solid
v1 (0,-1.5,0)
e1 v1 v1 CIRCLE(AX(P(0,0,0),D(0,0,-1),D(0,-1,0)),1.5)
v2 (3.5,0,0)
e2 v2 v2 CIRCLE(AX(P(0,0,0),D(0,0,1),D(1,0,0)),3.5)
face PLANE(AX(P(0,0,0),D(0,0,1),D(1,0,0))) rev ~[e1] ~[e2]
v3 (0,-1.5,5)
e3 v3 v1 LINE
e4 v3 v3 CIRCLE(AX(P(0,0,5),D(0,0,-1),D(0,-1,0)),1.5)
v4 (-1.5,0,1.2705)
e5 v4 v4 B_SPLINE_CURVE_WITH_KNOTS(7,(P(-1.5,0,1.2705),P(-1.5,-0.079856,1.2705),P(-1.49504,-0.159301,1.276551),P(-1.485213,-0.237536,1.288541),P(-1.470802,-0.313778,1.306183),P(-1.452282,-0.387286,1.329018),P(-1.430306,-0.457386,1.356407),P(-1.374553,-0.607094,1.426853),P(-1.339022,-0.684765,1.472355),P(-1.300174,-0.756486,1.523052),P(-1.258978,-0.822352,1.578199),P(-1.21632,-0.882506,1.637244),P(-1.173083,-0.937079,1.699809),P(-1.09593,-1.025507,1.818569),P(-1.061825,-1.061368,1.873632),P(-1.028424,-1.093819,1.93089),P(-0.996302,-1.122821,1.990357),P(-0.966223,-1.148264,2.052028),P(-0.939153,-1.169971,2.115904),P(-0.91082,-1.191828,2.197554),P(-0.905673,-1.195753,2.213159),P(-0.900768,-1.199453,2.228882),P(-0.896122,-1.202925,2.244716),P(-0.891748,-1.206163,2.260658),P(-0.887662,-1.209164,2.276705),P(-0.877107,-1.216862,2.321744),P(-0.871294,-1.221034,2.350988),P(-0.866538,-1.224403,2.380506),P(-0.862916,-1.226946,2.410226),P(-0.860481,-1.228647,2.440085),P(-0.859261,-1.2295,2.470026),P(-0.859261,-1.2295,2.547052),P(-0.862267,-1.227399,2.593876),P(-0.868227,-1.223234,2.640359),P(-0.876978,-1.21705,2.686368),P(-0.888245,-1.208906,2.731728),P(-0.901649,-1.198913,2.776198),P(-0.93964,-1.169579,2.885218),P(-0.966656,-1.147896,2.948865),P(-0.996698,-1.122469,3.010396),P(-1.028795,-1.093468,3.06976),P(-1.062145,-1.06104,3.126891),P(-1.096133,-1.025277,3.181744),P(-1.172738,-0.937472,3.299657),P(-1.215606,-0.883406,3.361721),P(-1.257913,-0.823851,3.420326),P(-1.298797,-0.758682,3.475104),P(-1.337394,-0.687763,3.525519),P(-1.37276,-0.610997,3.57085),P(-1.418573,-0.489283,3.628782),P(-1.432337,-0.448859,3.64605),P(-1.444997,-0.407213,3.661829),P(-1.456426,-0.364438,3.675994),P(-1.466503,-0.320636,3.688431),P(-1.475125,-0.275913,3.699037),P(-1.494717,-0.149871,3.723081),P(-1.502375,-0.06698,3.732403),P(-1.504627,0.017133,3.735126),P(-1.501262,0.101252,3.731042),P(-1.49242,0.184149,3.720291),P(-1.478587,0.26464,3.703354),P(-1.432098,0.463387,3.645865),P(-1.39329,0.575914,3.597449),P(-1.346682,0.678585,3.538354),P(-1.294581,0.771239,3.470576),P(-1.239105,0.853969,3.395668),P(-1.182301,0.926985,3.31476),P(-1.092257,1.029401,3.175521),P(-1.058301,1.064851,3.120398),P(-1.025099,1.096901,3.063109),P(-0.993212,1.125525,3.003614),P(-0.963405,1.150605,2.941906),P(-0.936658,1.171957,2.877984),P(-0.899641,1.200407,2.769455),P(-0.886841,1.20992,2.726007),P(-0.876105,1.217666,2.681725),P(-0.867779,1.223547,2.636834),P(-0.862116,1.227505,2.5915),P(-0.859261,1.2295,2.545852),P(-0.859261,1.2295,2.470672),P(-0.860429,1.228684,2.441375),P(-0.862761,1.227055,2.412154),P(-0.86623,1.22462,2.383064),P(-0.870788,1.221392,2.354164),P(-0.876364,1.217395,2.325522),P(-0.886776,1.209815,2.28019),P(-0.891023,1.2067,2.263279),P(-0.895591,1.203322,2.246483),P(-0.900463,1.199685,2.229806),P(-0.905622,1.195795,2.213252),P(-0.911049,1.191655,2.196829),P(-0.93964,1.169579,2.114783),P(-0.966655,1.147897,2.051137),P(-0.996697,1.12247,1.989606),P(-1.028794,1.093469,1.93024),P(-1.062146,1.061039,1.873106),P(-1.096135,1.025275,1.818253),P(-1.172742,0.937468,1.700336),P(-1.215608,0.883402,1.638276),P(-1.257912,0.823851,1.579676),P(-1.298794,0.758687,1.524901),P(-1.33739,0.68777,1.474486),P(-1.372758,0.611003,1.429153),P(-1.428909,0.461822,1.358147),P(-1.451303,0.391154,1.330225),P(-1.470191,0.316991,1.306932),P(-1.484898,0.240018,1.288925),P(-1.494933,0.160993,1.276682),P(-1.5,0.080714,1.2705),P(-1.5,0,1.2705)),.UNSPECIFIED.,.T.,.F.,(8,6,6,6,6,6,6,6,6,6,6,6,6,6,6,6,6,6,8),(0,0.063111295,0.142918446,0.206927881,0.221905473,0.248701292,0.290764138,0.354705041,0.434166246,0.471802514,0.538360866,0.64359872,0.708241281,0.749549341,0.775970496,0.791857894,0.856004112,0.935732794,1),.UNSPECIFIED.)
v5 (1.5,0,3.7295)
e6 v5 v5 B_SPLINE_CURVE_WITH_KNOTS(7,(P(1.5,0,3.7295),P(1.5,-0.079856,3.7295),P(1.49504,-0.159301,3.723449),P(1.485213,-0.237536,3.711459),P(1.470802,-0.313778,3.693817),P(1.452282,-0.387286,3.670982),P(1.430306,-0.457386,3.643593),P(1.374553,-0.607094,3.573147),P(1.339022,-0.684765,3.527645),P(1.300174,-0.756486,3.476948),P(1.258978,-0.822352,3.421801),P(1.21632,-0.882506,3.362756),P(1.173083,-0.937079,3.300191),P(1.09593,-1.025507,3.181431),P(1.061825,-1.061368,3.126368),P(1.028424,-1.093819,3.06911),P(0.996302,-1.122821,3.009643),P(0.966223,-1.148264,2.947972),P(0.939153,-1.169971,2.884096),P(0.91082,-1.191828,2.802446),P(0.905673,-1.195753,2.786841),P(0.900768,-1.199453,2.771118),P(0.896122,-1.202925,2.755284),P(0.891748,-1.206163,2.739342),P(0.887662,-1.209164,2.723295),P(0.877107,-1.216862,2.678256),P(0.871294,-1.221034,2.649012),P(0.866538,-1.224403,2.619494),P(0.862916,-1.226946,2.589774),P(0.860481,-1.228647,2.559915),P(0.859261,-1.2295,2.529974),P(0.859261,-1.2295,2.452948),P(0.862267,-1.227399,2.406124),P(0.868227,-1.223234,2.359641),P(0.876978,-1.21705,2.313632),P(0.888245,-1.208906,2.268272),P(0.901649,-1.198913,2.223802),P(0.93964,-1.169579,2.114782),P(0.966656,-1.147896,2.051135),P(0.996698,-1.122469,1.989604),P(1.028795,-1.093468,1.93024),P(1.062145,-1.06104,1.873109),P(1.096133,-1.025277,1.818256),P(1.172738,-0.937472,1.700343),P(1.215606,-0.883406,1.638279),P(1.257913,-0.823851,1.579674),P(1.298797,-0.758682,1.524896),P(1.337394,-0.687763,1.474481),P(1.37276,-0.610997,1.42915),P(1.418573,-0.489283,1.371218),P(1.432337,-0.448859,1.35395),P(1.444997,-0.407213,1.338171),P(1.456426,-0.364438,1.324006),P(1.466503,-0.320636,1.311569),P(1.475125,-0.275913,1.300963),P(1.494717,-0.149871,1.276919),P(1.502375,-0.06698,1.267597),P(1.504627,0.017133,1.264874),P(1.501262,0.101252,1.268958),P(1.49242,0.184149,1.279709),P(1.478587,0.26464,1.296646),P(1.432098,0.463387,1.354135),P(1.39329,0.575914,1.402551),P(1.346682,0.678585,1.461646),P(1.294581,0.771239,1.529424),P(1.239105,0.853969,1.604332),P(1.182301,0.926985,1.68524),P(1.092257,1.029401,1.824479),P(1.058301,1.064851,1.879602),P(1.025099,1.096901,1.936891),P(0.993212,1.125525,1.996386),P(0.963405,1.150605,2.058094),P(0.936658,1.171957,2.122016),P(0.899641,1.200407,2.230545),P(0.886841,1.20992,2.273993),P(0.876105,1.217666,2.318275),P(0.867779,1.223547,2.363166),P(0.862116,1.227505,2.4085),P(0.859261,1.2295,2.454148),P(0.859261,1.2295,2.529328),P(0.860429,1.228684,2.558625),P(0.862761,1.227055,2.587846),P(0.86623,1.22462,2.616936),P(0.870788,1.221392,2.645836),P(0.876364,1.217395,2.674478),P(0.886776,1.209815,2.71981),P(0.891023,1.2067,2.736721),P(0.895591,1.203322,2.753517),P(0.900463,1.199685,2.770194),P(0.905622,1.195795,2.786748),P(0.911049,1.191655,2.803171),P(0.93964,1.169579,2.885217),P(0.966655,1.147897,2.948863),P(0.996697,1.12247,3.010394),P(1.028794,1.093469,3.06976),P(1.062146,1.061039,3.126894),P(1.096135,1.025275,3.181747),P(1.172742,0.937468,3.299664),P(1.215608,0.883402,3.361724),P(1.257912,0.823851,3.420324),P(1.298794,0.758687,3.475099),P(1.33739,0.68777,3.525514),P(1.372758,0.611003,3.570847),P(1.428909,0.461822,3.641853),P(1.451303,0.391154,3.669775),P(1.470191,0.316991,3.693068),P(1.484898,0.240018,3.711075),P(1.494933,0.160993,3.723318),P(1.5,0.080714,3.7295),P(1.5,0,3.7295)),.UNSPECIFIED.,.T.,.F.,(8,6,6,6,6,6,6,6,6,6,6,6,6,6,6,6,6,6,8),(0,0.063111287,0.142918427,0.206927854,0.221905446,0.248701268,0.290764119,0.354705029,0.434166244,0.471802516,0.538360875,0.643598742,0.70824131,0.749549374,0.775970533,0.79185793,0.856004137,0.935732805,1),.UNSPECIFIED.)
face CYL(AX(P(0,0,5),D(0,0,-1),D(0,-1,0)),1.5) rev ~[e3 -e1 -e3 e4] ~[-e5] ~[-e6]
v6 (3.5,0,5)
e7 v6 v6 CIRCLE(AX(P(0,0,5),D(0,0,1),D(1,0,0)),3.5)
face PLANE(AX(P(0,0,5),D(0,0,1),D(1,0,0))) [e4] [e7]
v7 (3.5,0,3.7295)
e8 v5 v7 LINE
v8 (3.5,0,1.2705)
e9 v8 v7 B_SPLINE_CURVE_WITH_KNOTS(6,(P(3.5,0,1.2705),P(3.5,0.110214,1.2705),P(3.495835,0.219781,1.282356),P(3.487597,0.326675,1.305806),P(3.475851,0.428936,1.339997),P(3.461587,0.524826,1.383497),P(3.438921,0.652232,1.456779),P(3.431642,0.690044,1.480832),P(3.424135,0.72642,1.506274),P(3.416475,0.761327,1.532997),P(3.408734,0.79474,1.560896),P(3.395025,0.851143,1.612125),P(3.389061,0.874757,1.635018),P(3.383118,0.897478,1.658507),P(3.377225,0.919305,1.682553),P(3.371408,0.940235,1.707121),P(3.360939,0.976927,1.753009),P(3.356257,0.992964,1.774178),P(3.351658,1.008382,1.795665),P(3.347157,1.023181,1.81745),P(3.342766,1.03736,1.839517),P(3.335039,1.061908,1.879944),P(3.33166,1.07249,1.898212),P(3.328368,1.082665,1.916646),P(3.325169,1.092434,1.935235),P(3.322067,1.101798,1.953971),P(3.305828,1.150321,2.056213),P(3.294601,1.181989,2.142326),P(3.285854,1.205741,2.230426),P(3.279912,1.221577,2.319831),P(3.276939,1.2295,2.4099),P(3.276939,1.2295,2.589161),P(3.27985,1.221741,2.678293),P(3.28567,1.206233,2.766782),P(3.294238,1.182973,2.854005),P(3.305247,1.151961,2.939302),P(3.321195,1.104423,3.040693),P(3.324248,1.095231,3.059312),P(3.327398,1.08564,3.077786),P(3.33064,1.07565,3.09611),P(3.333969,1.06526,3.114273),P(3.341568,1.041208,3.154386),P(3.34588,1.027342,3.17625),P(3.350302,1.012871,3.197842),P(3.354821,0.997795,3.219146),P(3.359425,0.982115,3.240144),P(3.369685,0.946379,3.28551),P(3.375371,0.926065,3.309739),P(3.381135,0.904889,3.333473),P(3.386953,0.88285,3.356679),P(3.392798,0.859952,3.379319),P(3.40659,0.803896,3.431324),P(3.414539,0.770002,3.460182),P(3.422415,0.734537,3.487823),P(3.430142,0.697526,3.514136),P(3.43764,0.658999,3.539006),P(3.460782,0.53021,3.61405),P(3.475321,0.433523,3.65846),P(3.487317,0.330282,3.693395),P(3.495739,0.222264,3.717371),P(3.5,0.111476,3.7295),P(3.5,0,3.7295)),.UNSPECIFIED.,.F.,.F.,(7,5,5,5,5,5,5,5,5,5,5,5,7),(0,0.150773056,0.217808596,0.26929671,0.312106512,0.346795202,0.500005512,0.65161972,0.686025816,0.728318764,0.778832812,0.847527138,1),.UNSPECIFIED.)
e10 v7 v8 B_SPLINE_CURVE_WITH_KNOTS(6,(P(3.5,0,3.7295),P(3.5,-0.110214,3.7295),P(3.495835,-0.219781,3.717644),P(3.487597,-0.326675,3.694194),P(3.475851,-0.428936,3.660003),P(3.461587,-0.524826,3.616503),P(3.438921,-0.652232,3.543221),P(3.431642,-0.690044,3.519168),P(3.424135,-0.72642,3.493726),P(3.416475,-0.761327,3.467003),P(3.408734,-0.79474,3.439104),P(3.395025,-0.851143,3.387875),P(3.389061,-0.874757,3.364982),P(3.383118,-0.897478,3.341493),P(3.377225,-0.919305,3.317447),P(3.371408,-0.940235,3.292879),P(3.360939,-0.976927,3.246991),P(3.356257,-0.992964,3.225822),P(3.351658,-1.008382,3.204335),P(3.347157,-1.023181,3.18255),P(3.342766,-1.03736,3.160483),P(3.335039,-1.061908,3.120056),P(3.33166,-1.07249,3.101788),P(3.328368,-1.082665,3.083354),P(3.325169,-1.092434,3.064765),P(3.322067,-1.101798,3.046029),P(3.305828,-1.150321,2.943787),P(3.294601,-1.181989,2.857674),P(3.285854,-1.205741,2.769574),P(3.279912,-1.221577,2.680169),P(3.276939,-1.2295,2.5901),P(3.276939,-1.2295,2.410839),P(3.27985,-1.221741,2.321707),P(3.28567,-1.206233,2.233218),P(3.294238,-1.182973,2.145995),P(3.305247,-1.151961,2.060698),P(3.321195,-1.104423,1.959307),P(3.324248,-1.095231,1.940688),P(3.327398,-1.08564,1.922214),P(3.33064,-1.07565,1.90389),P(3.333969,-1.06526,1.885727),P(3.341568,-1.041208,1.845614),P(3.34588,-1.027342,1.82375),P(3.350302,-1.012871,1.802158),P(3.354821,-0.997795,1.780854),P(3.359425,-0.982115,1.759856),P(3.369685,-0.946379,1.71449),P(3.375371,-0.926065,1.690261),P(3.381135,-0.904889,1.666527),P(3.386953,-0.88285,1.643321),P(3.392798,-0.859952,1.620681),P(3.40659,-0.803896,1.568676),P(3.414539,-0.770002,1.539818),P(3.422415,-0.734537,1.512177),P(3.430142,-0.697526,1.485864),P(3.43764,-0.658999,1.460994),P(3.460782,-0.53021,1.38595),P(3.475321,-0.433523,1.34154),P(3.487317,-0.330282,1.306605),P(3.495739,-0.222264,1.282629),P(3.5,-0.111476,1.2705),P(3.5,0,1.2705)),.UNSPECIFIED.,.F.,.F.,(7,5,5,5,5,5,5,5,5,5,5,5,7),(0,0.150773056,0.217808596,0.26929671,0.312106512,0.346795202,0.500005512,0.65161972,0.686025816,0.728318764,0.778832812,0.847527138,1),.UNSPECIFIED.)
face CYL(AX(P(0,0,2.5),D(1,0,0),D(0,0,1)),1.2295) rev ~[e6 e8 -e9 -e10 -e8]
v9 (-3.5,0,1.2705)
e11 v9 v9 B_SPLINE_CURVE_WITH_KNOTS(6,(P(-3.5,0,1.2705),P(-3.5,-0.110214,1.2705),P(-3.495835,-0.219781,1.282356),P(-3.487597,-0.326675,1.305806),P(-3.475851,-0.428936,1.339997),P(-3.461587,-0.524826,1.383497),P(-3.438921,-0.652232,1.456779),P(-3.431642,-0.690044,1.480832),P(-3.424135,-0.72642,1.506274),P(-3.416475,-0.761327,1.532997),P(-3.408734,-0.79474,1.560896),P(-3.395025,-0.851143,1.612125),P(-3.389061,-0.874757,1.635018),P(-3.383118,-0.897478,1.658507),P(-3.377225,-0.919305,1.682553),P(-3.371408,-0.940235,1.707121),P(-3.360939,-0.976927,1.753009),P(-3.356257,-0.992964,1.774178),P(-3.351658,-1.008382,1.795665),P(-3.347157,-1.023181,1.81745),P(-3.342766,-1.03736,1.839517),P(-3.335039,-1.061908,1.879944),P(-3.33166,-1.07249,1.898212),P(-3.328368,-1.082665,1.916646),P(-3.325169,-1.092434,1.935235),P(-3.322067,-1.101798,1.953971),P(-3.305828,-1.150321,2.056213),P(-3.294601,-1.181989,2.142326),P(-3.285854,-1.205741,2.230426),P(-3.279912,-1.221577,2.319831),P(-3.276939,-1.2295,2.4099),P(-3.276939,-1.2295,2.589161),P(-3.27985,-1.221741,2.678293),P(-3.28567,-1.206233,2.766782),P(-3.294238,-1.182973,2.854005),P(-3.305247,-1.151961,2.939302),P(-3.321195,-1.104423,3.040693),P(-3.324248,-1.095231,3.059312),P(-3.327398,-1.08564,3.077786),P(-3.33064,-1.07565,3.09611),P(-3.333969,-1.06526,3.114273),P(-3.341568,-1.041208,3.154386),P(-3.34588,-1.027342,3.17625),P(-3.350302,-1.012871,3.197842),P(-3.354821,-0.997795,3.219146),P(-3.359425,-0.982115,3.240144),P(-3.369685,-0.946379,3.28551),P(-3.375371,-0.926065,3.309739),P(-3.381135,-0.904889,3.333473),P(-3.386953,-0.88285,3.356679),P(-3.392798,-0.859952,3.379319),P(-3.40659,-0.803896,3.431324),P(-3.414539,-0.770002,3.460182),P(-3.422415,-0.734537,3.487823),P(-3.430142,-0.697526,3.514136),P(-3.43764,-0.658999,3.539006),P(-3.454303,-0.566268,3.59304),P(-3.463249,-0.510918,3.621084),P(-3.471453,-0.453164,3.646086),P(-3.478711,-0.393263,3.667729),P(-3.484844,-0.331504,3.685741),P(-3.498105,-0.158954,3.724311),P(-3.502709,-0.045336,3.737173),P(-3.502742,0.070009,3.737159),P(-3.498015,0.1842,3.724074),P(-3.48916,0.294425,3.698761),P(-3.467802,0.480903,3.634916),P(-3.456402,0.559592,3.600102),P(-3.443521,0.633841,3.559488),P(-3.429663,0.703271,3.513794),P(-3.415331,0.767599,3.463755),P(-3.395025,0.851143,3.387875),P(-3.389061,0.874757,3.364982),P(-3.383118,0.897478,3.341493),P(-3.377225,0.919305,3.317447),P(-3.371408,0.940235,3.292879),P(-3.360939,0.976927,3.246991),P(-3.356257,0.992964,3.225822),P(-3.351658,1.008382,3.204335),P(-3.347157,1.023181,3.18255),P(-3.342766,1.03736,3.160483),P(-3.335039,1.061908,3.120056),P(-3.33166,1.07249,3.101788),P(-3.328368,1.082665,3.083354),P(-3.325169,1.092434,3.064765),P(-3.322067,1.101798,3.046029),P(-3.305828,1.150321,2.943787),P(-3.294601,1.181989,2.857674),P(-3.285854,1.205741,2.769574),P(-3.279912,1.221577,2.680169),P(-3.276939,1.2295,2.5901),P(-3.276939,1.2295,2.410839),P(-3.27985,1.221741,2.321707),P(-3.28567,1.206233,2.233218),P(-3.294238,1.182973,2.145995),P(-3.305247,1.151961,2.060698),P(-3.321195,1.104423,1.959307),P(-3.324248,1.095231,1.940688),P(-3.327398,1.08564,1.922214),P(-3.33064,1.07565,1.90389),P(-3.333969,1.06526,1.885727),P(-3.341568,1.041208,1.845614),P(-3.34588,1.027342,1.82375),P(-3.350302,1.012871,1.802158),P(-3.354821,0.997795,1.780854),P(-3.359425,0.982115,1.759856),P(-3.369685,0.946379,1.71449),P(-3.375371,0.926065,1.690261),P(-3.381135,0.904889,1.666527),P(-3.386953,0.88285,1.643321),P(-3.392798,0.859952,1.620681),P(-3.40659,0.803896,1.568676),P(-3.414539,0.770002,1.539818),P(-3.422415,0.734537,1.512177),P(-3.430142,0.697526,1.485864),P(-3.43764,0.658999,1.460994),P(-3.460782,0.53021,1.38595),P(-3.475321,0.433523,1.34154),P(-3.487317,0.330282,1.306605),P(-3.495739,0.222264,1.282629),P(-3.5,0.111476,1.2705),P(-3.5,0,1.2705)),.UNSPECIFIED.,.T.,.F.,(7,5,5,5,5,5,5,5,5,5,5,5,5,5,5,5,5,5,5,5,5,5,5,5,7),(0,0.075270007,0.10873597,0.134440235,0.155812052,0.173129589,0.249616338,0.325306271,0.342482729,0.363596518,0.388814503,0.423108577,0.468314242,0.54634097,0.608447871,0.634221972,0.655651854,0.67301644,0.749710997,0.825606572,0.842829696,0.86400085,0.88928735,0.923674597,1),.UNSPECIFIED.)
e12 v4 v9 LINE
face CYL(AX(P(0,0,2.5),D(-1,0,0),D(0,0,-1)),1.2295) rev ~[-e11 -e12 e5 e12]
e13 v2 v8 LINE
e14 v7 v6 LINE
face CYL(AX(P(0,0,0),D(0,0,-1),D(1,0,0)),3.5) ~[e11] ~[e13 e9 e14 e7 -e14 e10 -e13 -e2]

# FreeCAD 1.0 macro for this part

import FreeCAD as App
import Part
import Sketcher
from FreeCAD import Vector
Q = App.Units.Quantity

doc = App.newDocument("Part")
params = doc.addObject("Spreadsheet::Sheet", "Params")
for row, (alias, value) in enumerate([
    ("sketch1_diameter", "7 mm"),
    ("pad1_length", "5 mm"),
    ("sketch2_diameter", "3 mm"),
    ("hole_diameter", "3 mm"),
    ("hole2_diameter", "2.459 mm"),
    ("hole3_diameter", "2.459 mm"),
], start=1):
    params.set(f"A{row}", alias)
    params.set(f"B{row}", "=" + value)
    params.setAlias(f"B{row}", alias)

body = doc.addObject("PartDesign::Body", "Body")

sketch1 = body.newObject("Sketcher::SketchObject", "Sketch")
sketch1.AttachmentSupport = (doc.getObject("XY_Plane"), [""])
sketch1.MapMode = "FlatFace"
sketch1.addGeometry(Part.Circle(Vector(0, 0, 0), Vector(0, 0, 1), 3.5), False)
sketch1.addConstraint([
    Sketcher.Constraint("Coincident", 0, 3, -1, 1),
    Sketcher.Constraint("Diameter", 0, Q("7 mm")),
])
sketch1.setExpression("Constraints[1]", "Params.sketch1_diameter")
pad1 = body.newObject("PartDesign::Pad", "Pad")
pad1.Profile = sketch1
pad1.setExpression("Length", "Params.pad1_length")

sketch2 = body.newObject("Sketcher::SketchObject", "Sketch001")
sketch2.AttachmentSupport = (doc.getObject("XY_Plane"), [""])
sketch2.MapMode = "FlatFace"
sketch2.AttachmentOffset = App.Placement(Vector(0, 0, 5), App.Rotation())
sketch2.addGeometry(Part.Circle(Vector(0, 0, 0), Vector(0, 0, 1), 1.5), False)
sketch2.addConstraint([
    Sketcher.Constraint("Coincident", 0, 3, -1, 1),
    Sketcher.Constraint("Diameter", 0, Q("3 mm")),
])
sketch2.setExpression("Constraints[1]", "Params.sketch2_diameter")
doc.recompute()
hole = body.newObject("PartDesign::Hole", "Hole")
hole.Profile = sketch2
hole.ThreadType = "None"
hole.setExpression("Diameter", "Params.hole_diameter")
hole.DepthType = "ThroughAll"

sketch3 = body.newObject("Sketcher::SketchObject", "Sketch002")
sketch3.AttachmentSupport = (doc.getObject("YZ_Plane"), [""])
sketch3.MapMode = "FlatFace"
sketch3.addGeometry(Part.Circle(Vector(0, 2.5, 0), Vector(0, 0, 1), 1.2), False)
sketch3.addConstraint([
    Sketcher.Constraint("PointOnObject", 0, 3, -2),
    Sketcher.Constraint("Diameter", 0, Q("2.459 mm")),
    Sketcher.Constraint("DistanceY", -1, 1, 0, 3, Q("2.5 mm")),
])
doc.recompute()
hole2 = body.newObject("PartDesign::Hole", "Hole001")
hole2.Profile = sketch3
hole2.ThreadType = "None"
hole2.setExpression("Diameter", "Params.hole2_diameter")
hole2.DepthType = "ThroughAll"

sketch4 = body.newObject("Sketcher::SketchObject", "Sketch003")
sketch4.AttachmentSupport = (doc.getObject("YZ_Plane"), [""])
sketch4.MapMode = "FlatFace"
sketch4.addGeometry(Part.Circle(Vector(0, 2.5, 0), Vector(0, 0, 1), 1.2), False)
sketch4.addConstraint([
    Sketcher.Constraint("PointOnObject", 0, 3, -2),
    Sketcher.Constraint("Diameter", 0, Q("2.459 mm")),
    Sketcher.Constraint("DistanceY", -1, 1, 0, 3, Q("2.5 mm")),
])
doc.recompute()
hole3 = body.newObject("PartDesign::Hole", "Hole002")
hole3.Profile = sketch4
hole3.ThreadType = "None"
hole3.setExpression("Diameter", "Params.hole3_diameter")
hole3.DepthType = "ThroughAll"
hole3.Reversed = True

doc.recompute()
